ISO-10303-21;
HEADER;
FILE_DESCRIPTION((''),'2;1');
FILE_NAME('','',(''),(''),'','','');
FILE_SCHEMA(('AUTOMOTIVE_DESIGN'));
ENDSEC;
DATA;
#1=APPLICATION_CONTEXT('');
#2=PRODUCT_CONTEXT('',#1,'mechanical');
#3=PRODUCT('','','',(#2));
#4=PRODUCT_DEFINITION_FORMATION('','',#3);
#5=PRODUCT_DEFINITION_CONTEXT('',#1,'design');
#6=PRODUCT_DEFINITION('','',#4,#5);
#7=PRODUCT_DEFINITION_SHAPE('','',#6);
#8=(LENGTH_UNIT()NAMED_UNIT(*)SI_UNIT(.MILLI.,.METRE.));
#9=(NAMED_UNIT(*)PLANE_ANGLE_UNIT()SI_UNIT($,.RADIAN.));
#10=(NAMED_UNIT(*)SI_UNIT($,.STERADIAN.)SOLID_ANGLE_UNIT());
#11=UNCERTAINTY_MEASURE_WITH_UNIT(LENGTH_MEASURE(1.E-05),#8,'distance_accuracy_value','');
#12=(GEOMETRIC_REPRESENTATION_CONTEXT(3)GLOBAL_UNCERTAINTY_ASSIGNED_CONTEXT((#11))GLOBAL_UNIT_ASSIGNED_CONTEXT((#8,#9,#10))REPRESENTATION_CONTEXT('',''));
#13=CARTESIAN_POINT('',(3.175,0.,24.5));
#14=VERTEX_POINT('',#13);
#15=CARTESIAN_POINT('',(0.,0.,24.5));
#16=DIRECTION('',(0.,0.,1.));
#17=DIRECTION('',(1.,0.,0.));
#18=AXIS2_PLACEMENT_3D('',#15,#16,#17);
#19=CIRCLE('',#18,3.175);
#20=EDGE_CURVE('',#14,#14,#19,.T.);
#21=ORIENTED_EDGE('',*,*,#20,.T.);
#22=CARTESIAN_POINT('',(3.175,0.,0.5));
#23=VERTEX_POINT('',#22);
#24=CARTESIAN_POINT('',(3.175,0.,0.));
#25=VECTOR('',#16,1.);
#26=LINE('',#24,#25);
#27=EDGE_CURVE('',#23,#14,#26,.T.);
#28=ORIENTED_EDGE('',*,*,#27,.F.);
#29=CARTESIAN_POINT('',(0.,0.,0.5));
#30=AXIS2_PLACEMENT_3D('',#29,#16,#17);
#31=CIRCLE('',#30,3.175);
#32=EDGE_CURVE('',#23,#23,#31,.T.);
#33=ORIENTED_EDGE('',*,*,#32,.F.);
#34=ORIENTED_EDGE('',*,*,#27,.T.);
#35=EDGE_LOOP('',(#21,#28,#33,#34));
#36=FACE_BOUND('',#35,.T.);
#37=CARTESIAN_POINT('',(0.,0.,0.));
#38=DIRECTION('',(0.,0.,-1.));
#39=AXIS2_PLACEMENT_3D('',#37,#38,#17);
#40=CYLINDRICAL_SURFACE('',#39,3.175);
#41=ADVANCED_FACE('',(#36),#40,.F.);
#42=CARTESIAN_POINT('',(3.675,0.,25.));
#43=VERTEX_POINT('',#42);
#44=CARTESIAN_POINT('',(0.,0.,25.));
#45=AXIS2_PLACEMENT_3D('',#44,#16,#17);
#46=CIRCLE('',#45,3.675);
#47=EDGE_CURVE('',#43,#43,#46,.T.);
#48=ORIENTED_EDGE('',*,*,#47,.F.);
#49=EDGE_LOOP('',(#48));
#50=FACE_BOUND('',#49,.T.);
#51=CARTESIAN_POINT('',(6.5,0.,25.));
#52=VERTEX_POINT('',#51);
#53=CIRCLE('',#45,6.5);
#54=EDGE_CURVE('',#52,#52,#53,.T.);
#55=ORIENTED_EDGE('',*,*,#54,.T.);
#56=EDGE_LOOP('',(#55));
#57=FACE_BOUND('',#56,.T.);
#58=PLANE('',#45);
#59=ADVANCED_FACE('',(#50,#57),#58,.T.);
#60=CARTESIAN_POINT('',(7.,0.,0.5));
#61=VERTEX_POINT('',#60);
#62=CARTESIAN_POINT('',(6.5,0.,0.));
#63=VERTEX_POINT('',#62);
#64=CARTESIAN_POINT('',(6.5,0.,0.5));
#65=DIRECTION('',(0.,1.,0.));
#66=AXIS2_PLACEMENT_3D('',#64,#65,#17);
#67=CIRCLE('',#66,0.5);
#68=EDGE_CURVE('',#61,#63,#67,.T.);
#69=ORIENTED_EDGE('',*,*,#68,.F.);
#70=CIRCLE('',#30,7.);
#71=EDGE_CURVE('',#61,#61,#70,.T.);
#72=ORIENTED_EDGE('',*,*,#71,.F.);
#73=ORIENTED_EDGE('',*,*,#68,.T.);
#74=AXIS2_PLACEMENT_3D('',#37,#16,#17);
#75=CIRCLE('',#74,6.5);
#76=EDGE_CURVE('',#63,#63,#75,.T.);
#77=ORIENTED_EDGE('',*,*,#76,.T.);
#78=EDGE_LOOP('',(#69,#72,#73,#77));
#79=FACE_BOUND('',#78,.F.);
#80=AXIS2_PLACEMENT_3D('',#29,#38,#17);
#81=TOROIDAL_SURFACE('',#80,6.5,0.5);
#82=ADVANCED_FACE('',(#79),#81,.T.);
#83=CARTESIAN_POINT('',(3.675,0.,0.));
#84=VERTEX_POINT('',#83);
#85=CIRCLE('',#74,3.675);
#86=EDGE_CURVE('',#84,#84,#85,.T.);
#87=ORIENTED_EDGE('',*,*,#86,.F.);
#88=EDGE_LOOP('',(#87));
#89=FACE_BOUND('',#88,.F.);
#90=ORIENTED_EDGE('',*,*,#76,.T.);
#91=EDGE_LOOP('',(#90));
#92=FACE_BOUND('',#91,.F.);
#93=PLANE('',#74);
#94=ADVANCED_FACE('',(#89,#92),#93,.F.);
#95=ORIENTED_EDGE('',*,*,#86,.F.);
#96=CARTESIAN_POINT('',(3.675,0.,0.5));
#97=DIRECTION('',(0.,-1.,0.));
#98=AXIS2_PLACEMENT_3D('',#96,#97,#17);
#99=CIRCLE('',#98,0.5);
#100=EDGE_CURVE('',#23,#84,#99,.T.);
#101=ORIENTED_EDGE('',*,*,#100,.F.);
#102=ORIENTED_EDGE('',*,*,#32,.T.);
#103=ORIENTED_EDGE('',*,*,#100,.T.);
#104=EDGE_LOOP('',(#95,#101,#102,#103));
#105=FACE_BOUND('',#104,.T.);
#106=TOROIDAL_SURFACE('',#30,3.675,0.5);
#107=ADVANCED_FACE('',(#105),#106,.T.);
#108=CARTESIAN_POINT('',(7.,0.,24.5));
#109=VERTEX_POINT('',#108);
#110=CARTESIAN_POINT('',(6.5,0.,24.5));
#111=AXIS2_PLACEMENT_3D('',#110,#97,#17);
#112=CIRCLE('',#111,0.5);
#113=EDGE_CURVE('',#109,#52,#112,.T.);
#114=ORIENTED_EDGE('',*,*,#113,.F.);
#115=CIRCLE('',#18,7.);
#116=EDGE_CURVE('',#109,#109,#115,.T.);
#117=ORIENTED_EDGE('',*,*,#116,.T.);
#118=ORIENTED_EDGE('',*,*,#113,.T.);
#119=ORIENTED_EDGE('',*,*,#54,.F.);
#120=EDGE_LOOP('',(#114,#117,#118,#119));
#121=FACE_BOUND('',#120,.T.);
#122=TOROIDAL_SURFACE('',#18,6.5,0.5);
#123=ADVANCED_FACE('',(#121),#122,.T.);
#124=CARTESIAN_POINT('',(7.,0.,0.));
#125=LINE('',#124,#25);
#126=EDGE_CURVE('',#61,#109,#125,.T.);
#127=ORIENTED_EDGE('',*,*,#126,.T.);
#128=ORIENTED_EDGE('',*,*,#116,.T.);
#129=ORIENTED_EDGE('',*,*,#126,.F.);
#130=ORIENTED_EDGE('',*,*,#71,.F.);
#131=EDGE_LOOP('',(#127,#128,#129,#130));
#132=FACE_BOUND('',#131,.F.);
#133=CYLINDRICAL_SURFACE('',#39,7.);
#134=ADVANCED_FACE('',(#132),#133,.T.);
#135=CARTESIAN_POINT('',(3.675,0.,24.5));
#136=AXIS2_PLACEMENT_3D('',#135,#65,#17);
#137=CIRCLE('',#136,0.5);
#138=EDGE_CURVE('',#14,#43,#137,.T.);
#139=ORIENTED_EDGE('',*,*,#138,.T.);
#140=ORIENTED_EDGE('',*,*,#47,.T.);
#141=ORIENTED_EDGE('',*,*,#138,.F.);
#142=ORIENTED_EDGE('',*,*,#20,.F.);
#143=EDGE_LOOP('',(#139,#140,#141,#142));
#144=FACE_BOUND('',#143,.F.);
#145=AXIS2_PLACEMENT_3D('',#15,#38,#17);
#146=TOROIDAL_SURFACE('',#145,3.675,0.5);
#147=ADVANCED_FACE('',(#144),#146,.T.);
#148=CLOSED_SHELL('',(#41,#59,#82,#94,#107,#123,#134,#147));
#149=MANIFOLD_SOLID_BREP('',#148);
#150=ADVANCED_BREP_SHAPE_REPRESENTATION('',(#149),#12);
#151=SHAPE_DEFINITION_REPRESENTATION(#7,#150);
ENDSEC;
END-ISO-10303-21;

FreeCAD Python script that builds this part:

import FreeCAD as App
import Part
import Sketcher
from FreeCAD import Vector
Q = App.Units.Quantity


def edges_at(feature, points):
    """Names of the edges that pass closest to the given points."""
    edges = feature.Shape.Edges
    near = lambda p: min(range(len(edges)), key=lambda i: edges[i].distToShape(Part.Vertex(*p))[0])
    return sorted({f"Edge{near(p) + 1}" for p in points})

doc = App.newDocument("Part")
body = doc.addObject("PartDesign::Body", "Body")

sketch1 = body.newObject("Sketcher::SketchObject", "Sketch")
sketch1.AttachmentSupport = (doc.getObject("XY_Plane"), [""])
sketch1.MapMode = "FlatFace"
sketch1.addGeometry([
    Part.Circle(Vector(0, 0, 0), Vector(0, 0, 1), 7),
    Part.Circle(Vector(0, 0, 0), Vector(0, 0, 1), 3.175),
], False)
sketch1.addConstraint([
    Sketcher.Constraint("Coincident", 0, 3, -1, 1),
    Sketcher.Constraint("Coincident", 1, 3, -1, 1),
    Sketcher.Constraint("Diameter", 0, Q("14 mm")),
    Sketcher.Constraint("Diameter", 1, Q("6.35 mm")),
])
pad1 = body.newObject("PartDesign::Pad", "Pad")
pad1.Profile = sketch1
pad1.Length = 25
doc.recompute()

fillet = body.newObject("PartDesign::Fillet", "Fillet")
fillet.Base = (pad1, edges_at(pad1, [
    (-7, 0, 25),
    (-7, 0, 0),
    (-3.175, 0, 0),
    (-3.175, 0, 25),
]))
fillet.Radius = 0.5

doc.recompute()
